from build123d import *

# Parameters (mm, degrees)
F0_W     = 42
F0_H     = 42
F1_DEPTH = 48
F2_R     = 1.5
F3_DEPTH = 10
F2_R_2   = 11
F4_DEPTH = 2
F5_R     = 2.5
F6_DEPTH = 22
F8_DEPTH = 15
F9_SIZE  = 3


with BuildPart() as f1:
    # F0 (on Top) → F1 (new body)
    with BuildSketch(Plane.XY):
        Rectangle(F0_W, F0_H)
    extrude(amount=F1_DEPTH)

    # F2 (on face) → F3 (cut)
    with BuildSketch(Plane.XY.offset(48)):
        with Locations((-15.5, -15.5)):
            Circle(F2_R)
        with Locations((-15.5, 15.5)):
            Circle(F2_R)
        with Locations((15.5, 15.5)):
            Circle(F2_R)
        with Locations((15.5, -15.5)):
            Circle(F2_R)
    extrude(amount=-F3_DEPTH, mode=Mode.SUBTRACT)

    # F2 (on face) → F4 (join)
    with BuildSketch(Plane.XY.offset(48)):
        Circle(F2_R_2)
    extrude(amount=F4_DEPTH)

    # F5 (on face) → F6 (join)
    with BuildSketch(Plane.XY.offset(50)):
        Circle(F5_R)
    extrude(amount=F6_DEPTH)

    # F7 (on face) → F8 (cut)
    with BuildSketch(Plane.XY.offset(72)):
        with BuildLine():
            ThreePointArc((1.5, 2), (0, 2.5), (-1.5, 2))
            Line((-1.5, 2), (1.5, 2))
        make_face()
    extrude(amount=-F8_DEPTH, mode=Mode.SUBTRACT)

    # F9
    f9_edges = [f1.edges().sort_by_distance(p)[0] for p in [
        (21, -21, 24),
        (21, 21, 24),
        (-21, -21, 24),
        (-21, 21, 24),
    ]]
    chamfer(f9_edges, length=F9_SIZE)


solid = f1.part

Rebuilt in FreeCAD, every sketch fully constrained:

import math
import FreeCAD as App
import Part
import Sketcher
from FreeCAD import Vector
Q = App.Units.Quantity


def edges_at(feature, points):
    """Names of the edges that pass closest to the given points."""
    edges = feature.Shape.Edges
    near = lambda p: min(range(len(edges)), key=lambda i: edges[i].distToShape(Part.Vertex(*p))[0])
    return sorted({f"Edge{near(p) + 1}" for p in points})


def add_polygon(sketch, points):
    """Adds a closed chain of lines whose ends are joined by coincident constraints."""
    first, n = sketch.GeometryCount, len(points)
    for a, b in zip(points, points[1:] + points[:1]):
        sketch.addGeometry(Part.LineSegment(App.Vector(*a, 0), App.Vector(*b, 0)), False)
    for i in range(n):
        sketch.addConstraint(Sketcher.Constraint("Coincident", first + i, 2, first + (i + 1) % n, 1))

doc = App.newDocument("Part")
body = doc.addObject("PartDesign::Body", "Body")

# Sketch on XY plane
sketch1 = body.newObject("Sketcher::SketchObject", "Sketch")
sketch1.AttachmentSupport = (doc.getObject("XY_Plane"), [""])
sketch1.MapMode = "FlatFace"
add_polygon(sketch1, [(-21, 21), (-21, -21), (21, -21), (21, 21)])  # lines 0-3
sketch1.addConstraint([
    Sketcher.Constraint("Vertical", 0),
    Sketcher.Constraint("Horizontal", 1),
    Sketcher.Constraint("Vertical", 2),
    Sketcher.Constraint("Horizontal", 3),
    Sketcher.Constraint("Symmetric", 0, 2, 2, 2, -1, 1),
    Sketcher.Constraint("Equal", 3, 0),
    Sketcher.Constraint("DistanceX", 1, 1, 1, 2, Q("42 mm")),
])
pad1 = body.newObject("PartDesign::Pad", "Pad")
pad1.Profile = sketch1
pad1.Length = 48

# Sketch on XY plane
sketch2 = body.newObject("Sketcher::SketchObject", "Sketch001")
sketch2.AttachmentSupport = (doc.getObject("XY_Plane"), [""])
sketch2.MapMode = "FlatFace"
sketch2.AttachmentOffset = App.Placement(Vector(0, 0, 48), App.Rotation())
sketch2.addGeometry([
    Part.Circle(Vector(-15.5, -15.5, 0), Vector(0, 0, 1), 1.5),
    Part.Circle(Vector(-15.5, 15.5, 0), Vector(0, 0, 1), 1.5),
    Part.Circle(Vector(15.5, 15.5, 0), Vector(0, 0, 1), 1.5),
    Part.Circle(Vector(15.5, -15.5, 0), Vector(0, 0, 1), 1.5),
], False)
sketch2.addConstraint([
    Sketcher.Constraint("Equal", 0, 1),
    Sketcher.Constraint("Equal", 1, 2),
    Sketcher.Constraint("Equal", 2, 3),
    Sketcher.Constraint("Symmetric", 0, 3, 2, 3, -1, 1),
    Sketcher.Constraint("Symmetric", 1, 3, 3, 3, -1, 1),
    Sketcher.Constraint("Symmetric", 1, 3, 2, 3, -2),
    Sketcher.Constraint("Diameter", 0, Q("3 mm")),
    Sketcher.Constraint("DistanceY", 0, 3, 1, 3, Q("31 mm")),
    Sketcher.Constraint("DistanceX", 1, 3, 2, 3, Q("31 mm")),
])
pocket1 = body.newObject("PartDesign::Pocket", "Pocket")
pocket1.Profile = sketch2
pocket1.Length = 10

# Sketch on XY plane
sketch3 = body.newObject("Sketcher::SketchObject", "Sketch002")
sketch3.AttachmentSupport = (doc.getObject("XY_Plane"), [""])
sketch3.MapMode = "FlatFace"
sketch3.AttachmentOffset = App.Placement(Vector(0, 0, 48), App.Rotation())
sketch3.addGeometry(Part.Circle(Vector(0, 0, 0), Vector(0, 0, 1), 11), False)
sketch3.addConstraint([
    Sketcher.Constraint("Coincident", 0, 3, -1, 1),
    Sketcher.Constraint("Diameter", 0, Q("22 mm")),
])
pad2 = body.newObject("PartDesign::Pad", "Pad001")
pad2.Profile = sketch3
pad2.Length = 2

# Sketch on XY plane
sketch4 = body.newObject("Sketcher::SketchObject", "Sketch003")
sketch4.AttachmentSupport = (doc.getObject("XY_Plane"), [""])
sketch4.MapMode = "FlatFace"
sketch4.AttachmentOffset = App.Placement(Vector(0, 0, 50), App.Rotation())
sketch4.addGeometry(Part.Circle(Vector(0, 0, 0), Vector(0, 0, 1), 2.5), False)
sketch4.addConstraint([
    Sketcher.Constraint("Coincident", 0, 3, -1, 1),
    Sketcher.Constraint("Diameter", 0, Q("5 mm")),
])
pad3 = body.newObject("PartDesign::Pad", "Pad002")
pad3.Profile = sketch4
pad3.Length = 22

# Sketch on XY plane
sketch5 = body.newObject("Sketcher::SketchObject", "Sketch004")
sketch5.AttachmentSupport = (doc.getObject("XY_Plane"), [""])
sketch5.MapMode = "FlatFace"
sketch5.AttachmentOffset = App.Placement(Vector(0, 0, 72), App.Rotation())
sketch5.addGeometry([
    Part.ArcOfCircle(Part.Circle(Vector(0, 0, 0), Vector(0, 0, 1), 2.5), math.radians(53), math.radians(127)),
    Part.LineSegment(Vector(-1.5, 2, 0), Vector(1.5, 2, 0)),
], False)
sketch5.addConstraint([
    Sketcher.Constraint("Coincident", 0, 1, 1, 2),
    Sketcher.Constraint("Coincident", 1, 1, 0, 2),
    Sketcher.Constraint("Horizontal", 1),
    Sketcher.Constraint("Coincident", 0, 3, -1, 1),
    Sketcher.Constraint("Radius", 0, Q("2.5 mm")),
    Sketcher.Constraint("DistanceX", 1, 1, 1, 2, Q("3 mm")),
])
pocket2 = body.newObject("PartDesign::Pocket", "Pocket001")
pocket2.Profile = sketch5
pocket2.Length = 15
doc.recompute()

chamfer = body.newObject("PartDesign::Chamfer", "Chamfer")
chamfer.Base = (pocket2, edges_at(pocket2, [
    (21, -21, 24),
    (21, 21, 24),
    (-21, -21, 24),
    (-21, 21, 24),
]))
chamfer.Size = 3

doc.recompute()
